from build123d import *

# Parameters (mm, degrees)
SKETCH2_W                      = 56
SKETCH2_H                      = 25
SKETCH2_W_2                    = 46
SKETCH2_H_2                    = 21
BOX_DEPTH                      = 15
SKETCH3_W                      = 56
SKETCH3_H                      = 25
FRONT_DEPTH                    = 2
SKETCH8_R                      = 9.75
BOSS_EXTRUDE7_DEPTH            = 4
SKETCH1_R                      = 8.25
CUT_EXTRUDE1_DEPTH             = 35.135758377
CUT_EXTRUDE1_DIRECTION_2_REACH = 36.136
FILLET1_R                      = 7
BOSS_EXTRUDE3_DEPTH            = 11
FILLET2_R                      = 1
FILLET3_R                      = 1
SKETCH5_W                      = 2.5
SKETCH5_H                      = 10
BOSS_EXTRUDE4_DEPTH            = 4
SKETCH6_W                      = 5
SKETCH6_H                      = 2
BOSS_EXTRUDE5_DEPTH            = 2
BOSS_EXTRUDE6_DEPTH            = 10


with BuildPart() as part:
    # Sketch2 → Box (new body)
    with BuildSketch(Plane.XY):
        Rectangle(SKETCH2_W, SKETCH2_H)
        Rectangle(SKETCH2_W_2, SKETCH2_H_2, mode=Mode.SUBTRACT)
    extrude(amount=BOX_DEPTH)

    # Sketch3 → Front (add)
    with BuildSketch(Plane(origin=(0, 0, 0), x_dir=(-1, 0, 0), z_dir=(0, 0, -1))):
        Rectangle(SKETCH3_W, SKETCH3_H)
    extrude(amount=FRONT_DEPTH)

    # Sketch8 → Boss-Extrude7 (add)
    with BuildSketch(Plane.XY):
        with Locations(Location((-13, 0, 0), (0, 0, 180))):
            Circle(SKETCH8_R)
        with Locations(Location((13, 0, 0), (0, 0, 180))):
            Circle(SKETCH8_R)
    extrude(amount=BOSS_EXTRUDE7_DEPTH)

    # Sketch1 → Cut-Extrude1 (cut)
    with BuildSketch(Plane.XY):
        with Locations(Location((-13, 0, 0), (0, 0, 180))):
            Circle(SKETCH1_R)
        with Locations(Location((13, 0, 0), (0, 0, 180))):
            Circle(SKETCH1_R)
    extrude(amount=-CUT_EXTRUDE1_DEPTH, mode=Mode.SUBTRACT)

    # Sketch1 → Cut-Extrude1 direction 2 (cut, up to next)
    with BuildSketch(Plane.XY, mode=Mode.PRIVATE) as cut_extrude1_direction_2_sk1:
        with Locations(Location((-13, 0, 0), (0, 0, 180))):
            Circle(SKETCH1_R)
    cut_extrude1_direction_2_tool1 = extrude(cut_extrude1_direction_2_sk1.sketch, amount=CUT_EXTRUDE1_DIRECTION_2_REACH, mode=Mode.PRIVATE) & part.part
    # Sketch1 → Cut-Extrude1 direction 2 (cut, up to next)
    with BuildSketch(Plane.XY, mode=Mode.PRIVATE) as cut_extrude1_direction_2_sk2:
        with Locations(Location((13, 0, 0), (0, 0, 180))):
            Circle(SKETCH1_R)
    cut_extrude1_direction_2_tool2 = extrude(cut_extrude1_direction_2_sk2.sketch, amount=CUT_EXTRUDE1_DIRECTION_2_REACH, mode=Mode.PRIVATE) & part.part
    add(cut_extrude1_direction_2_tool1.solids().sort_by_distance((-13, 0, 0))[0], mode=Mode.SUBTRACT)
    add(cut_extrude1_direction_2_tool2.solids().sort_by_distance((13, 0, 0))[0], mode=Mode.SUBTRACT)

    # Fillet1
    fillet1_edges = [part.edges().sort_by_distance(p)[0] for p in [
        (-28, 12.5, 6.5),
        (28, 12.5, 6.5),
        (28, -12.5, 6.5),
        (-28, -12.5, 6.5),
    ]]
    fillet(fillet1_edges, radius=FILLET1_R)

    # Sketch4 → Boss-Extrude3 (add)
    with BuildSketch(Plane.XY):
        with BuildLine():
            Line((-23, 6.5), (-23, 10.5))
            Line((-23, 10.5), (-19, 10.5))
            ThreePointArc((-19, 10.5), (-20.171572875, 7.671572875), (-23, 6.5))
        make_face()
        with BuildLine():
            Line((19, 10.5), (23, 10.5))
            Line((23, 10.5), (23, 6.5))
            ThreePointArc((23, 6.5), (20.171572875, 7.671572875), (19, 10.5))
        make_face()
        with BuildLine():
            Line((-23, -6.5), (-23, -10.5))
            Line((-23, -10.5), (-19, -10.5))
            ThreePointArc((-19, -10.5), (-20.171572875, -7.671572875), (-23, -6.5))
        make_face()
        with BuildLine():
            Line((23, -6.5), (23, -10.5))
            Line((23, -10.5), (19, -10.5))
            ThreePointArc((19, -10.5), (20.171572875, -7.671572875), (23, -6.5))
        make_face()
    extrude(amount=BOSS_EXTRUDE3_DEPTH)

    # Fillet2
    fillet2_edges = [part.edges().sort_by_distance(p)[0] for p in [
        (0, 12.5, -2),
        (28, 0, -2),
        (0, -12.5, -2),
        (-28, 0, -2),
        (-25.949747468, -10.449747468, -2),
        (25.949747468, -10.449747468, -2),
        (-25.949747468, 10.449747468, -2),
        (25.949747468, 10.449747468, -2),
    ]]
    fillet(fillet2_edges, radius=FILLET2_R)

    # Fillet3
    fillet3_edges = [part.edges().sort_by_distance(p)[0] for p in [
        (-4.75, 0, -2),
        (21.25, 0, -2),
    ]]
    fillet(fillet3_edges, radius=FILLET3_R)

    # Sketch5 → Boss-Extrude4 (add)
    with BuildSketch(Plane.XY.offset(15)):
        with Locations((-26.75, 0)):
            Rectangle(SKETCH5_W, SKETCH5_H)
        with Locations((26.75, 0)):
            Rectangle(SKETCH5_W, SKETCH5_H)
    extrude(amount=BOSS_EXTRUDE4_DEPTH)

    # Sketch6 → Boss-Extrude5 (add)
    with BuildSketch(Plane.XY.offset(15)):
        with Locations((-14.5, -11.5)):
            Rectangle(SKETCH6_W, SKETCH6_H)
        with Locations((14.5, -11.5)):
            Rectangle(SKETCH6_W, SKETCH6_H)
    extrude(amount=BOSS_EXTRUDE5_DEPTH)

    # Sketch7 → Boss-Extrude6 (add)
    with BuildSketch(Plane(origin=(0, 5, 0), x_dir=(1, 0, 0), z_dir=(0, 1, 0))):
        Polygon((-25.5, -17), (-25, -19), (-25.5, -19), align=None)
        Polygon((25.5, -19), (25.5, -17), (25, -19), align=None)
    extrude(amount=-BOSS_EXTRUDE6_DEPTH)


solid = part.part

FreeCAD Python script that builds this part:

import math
import FreeCAD as App
import Part
import Sketcher
Q = App.Units.Quantity


def edges_at(feature, points):
    """Names of the edges that pass closest to the given points."""
    edges = feature.Shape.Edges
    near = lambda p: min(range(len(edges)), key=lambda i: edges[i].distToShape(Part.Vertex(*p))[0])
    return sorted({f"Edge{near(p) + 1}" for p in points})

doc = App.newDocument("Part")
body = doc.addObject("PartDesign::Body", "Body")

# Sketch on XY plane
sketch1 = body.newObject("Sketcher::SketchObject", "Sketch")
sketch1.AttachmentSupport = (doc.getObject("XY_Plane"), [""])
sketch1.MapMode = "FlatFace"
sketch1.addGeometry([
    Part.LineSegment(App.Vector(-28, 12, 0), App.Vector(-28, -12, 0)),  # 0
    Part.LineSegment(App.Vector(-28, -12, 0), App.Vector(28, -12, 0)),  # 1
    Part.LineSegment(App.Vector(28, -12, 0), App.Vector(28, 12, 0)),  # 2
    Part.LineSegment(App.Vector(28, 12, 0), App.Vector(-28, 12, 0)),  # 3
    Part.LineSegment(App.Vector(23, -10, 0), App.Vector(-23, -10, 0)),  # 4
    Part.LineSegment(App.Vector(-23, -10, 0), App.Vector(-23, 10, 0)),  # 5
    Part.LineSegment(App.Vector(-23, 10, 0), App.Vector(23, 10, 0)),  # 6
    Part.LineSegment(App.Vector(23, 10, 0), App.Vector(23, -10, 0)),  # 7
], False)
sketch1.addConstraint([
    Sketcher.Constraint("Coincident", 0, 2, 1, 1),
    Sketcher.Constraint("Coincident", 1, 2, 2, 1),
    Sketcher.Constraint("Coincident", 2, 2, 3, 1),
    Sketcher.Constraint("Coincident", 3, 2, 0, 1),
    Sketcher.Constraint("Coincident", 4, 2, 5, 1),
    Sketcher.Constraint("Coincident", 5, 2, 6, 1),
    Sketcher.Constraint("Coincident", 6, 2, 7, 1),
    Sketcher.Constraint("Coincident", 7, 2, 4, 1),
    Sketcher.Constraint("Vertical", 0),
    Sketcher.Constraint("Horizontal", 1),
    Sketcher.Constraint("Vertical", 2),
    Sketcher.Constraint("Horizontal", 3),
    Sketcher.Constraint("Horizontal", 4),
    Sketcher.Constraint("Vertical", 5),
    Sketcher.Constraint("Horizontal", 6),
    Sketcher.Constraint("Vertical", 7),
    Sketcher.Constraint("Symmetric", 0, 2, 2, 2, -1, 1),
    Sketcher.Constraint("Symmetric", 4, 2, 6, 2, -1, 1),
    Sketcher.Constraint("DistanceX", 1, 1, 1, 2, Q("56 mm")),
    Sketcher.Constraint("DistanceX", 4, 2, 4, 1, Q("46 mm")),
    Sketcher.Constraint("DistanceY", 0, 2, 0, 1, Q("25 mm")),
    Sketcher.Constraint("DistanceY", 5, 1, 5, 2, Q("21 mm")),
])
pad1 = body.newObject("PartDesign::Pad", "Pad")
pad1.Profile = sketch1
pad1.Length = 15

# Sketch on XY plane
sketch2 = body.newObject("Sketcher::SketchObject", "Sketch001")
sketch2.AttachmentSupport = (doc.getObject("XY_Plane"), [""])
sketch2.MapMode = "FlatFace"
sketch2.addGeometry([
    Part.LineSegment(App.Vector(28, 12, 0), App.Vector(28, -12, 0)),
    Part.LineSegment(App.Vector(28, -12, 0), App.Vector(-28, -12, 0)),
    Part.LineSegment(App.Vector(-28, -12, 0), App.Vector(-28, 12, 0)),
    Part.LineSegment(App.Vector(-28, 12, 0), App.Vector(28, 12, 0)),
], False)
sketch2.addConstraint([
    Sketcher.Constraint("Coincident", 0, 2, 1, 1),
    Sketcher.Constraint("Coincident", 1, 2, 2, 1),
    Sketcher.Constraint("Coincident", 2, 2, 3, 1),
    Sketcher.Constraint("Coincident", 3, 2, 0, 1),
    Sketcher.Constraint("Vertical", 0),
    Sketcher.Constraint("Horizontal", 1),
    Sketcher.Constraint("Vertical", 2),
    Sketcher.Constraint("Horizontal", 3),
    Sketcher.Constraint("Symmetric", 0, 2, 2, 2, -1, 1),
    Sketcher.Constraint("DistanceX", 1, 2, 1, 1, Q("56 mm")),
    Sketcher.Constraint("DistanceY", 0, 2, 0, 1, Q("25 mm")),
])
pad2 = body.newObject("PartDesign::Pad", "Pad001")
pad2.Profile = sketch2
pad2.Length = 2
pad2.Reversed = True

# Sketch on XY plane
sketch3 = body.newObject("Sketcher::SketchObject", "Sketch002")
sketch3.AttachmentSupport = (doc.getObject("XY_Plane"), [""])
sketch3.MapMode = "FlatFace"
sketch3.addGeometry([
    Part.Circle(App.Vector(-13, 0, 0), App.Vector(0, 0, 1), 10),
    Part.Circle(App.Vector(13, 0, 0), App.Vector(0, 0, 1), 10),
], False)
sketch3.addConstraint([
    Sketcher.Constraint("Equal", 0, 1),
    Sketcher.Constraint("Symmetric", 0, 3, 1, 3, -1, 1),
    Sketcher.Constraint("PointOnObject", 0, 3, -1),
    Sketcher.Constraint("Diameter", 0, Q("19.5 mm")),
    Sketcher.Constraint("DistanceX", 0, 3, -1, 1, Q("13 mm")),
])
pad3 = body.newObject("PartDesign::Pad", "Pad002")
pad3.Profile = sketch3
pad3.Length = 4

# Sketch on XY plane
sketch4 = body.newObject("Sketcher::SketchObject", "Sketch003")
sketch4.AttachmentSupport = (doc.getObject("XY_Plane"), [""])
sketch4.MapMode = "FlatFace"
sketch4.addGeometry([
    Part.Circle(App.Vector(-13, 0, 0), App.Vector(0, 0, 1), 8),
    Part.Circle(App.Vector(13, 0, 0), App.Vector(0, 0, 1), 8),
], False)
sketch4.addConstraint([
    Sketcher.Constraint("Equal", 0, 1),
    Sketcher.Constraint("Symmetric", 0, 3, 1, 3, -1, 1),
    Sketcher.Constraint("PointOnObject", 0, 3, -1),
    Sketcher.Constraint("Diameter", 0, Q("16.5 mm")),
    Sketcher.Constraint("DistanceX", 0, 3, -1, 1, Q("13 mm")),
])
pocket1 = body.newObject("PartDesign::Pocket", "Pocket")
pocket1.Profile = sketch4
pocket1.Length = 35.135758

# Sketch on XY plane
sketch5 = body.newObject("Sketcher::SketchObject", "Sketch004")
sketch5.AttachmentSupport = (doc.getObject("XY_Plane"), [""])
sketch5.MapMode = "FlatFace"
sketch5.addGeometry(Part.Circle(App.Vector(-13, 0, 0), App.Vector(0, 0, 1), 8), False)
sketch5.addConstraint([
    Sketcher.Constraint("PointOnObject", 0, 3, -1),
    Sketcher.Constraint("Diameter", 0, Q("16.5 mm")),
    Sketcher.Constraint("DistanceX", 0, 3, -1, 1, Q("13 mm")),
])
pocket2 = body.newObject("PartDesign::Pocket", "Pocket001")
pocket2.Profile = sketch5
pocket2.Type = "UpToFirst"
pocket2.Reversed = True

# Sketch on XY plane
sketch6 = body.newObject("Sketcher::SketchObject", "Sketch005")
sketch6.AttachmentSupport = (doc.getObject("XY_Plane"), [""])
sketch6.MapMode = "FlatFace"
sketch6.addGeometry(Part.Circle(App.Vector(13, 0, 0), App.Vector(0, 0, 1), 8), False)
sketch6.addConstraint([
    Sketcher.Constraint("PointOnObject", 0, 3, -1),
    Sketcher.Constraint("Diameter", 0, Q("16.5 mm")),
    Sketcher.Constraint("DistanceX", -1, 1, 0, 3, Q("13 mm")),
])
pocket3 = body.newObject("PartDesign::Pocket", "Pocket002")
pocket3.Profile = sketch6
pocket3.Type = "UpToFirst"
pocket3.Reversed = True
doc.recompute()

fillet = body.newObject("PartDesign::Fillet", "Fillet")
fillet.Base = (pocket3, edges_at(pocket3, [
    (-28, 12.5, 6.5),
    (28, 12.5, 6.5),
    (28, -12.5, 6.5),
    (-28, -12.5, 6.5),
]))
fillet.Radius = 7

# Sketch on XY plane
sketch7 = body.newObject("Sketcher::SketchObject", "Sketch006")
sketch7.AttachmentSupport = (doc.getObject("XY_Plane"), [""])
sketch7.MapMode = "FlatFace"
sketch7.addGeometry([
    Part.LineSegment(App.Vector(-23, 10.5, 0), App.Vector(-23, 6.5, 0)),  # 0
    Part.ArcOfCircle(Part.Circle(App.Vector(-23, 10.5, 0), App.Vector(0, 0, 1), 4), math.radians(-90), math.radians(0)),  # 1
    Part.LineSegment(App.Vector(-19, 10.5, 0), App.Vector(-23, 10.5, 0)),  # 2
    Part.LineSegment(App.Vector(23, 10.5, 0), App.Vector(19, 10.5, 0)),  # 3
    Part.ArcOfCircle(Part.Circle(App.Vector(23, 10.5, 0), App.Vector(0, 0, 1), 4), math.radians(180), math.radians(270)),  # 4
    Part.LineSegment(App.Vector(23, 6.5, 0), App.Vector(23, 10.5, 0)),  # 5
    Part.LineSegment(App.Vector(-23, -6.5, 0), App.Vector(-23, -10.5, 0)),  # 6
    Part.LineSegment(App.Vector(-23, -10.5, 0), App.Vector(-19, -10.5, 0)),  # 7
    Part.ArcOfCircle(Part.Circle(App.Vector(-23, -10.5, 0), App.Vector(0, 0, 1), 4), math.radians(0), math.radians(90)),  # 8
    Part.LineSegment(App.Vector(23, -10.5, 0), App.Vector(23, -6.5, 0)),  # 9
    Part.ArcOfCircle(Part.Circle(App.Vector(23, -10.5, 0), App.Vector(0, 0, 1), 4), math.radians(90), math.radians(180)),  # 10
    Part.LineSegment(App.Vector(19, -10.5, 0), App.Vector(23, -10.5, 0)),  # 11
], False)
sketch7.addConstraint([
    Sketcher.Constraint("Coincident", 0, 2, 1, 1),
    Sketcher.Constraint("Coincident", 1, 2, 2, 1),
    Sketcher.Constraint("Coincident", 2, 2, 0, 1),
    Sketcher.Constraint("Coincident", 3, 2, 4, 1),
    Sketcher.Constraint("Coincident", 4, 2, 5, 1),
    Sketcher.Constraint("Coincident", 5, 2, 3, 1),
    Sketcher.Constraint("Coincident", 6, 2, 7, 1),
    Sketcher.Constraint("Coincident", 7, 2, 8, 1),
    Sketcher.Constraint("Coincident", 8, 2, 6, 1),
    Sketcher.Constraint("Coincident", 9, 2, 10, 1),
    Sketcher.Constraint("Coincident", 10, 2, 11, 1),
    Sketcher.Constraint("Coincident", 11, 2, 9, 1),
    Sketcher.Constraint("Vertical", 0),
    Sketcher.Constraint("Horizontal", 2),
    Sketcher.Constraint("Horizontal", 3),
    Sketcher.Constraint("Vertical", 5),
    Sketcher.Constraint("Vertical", 6),
    Sketcher.Constraint("Horizontal", 7),
    Sketcher.Constraint("Vertical", 9),
    Sketcher.Constraint("Horizontal", 11),
    Sketcher.Constraint("Coincident", 2, 2, 1, 3),
    Sketcher.Constraint("Coincident", 5, 2, 4, 3),
    Sketcher.Constraint("Coincident", 6, 2, 8, 3),
    Sketcher.Constraint("Coincident", 11, 2, 10, 3),
    Sketcher.Constraint("Equal", 1, 4),
    Sketcher.Constraint("Equal", 4, 8),
    Sketcher.Constraint("Equal", 8, 10),
    Sketcher.Constraint("Symmetric", 4, 3, 8, 3, -1, 1),
    Sketcher.Constraint("Symmetric", 1, 3, 10, 3, -1, 1),
    Sketcher.Constraint("Symmetric", 1, 3, 4, 3, -2),
    Sketcher.Constraint("Radius", 1, Q("4 mm")),
    Sketcher.Constraint("DistanceX", 1, 3, -1, 1, Q("23 mm")),
    Sketcher.Constraint("DistanceY", 8, 3, 1, 3, Q("21 mm")),
])
pad4 = body.newObject("PartDesign::Pad", "Pad003")
pad4.Profile = sketch7
pad4.Length = 11
doc.recompute()

fillet2 = body.newObject("PartDesign::Fillet", "Fillet001")
fillet2.Base = (pad4, edges_at(pad4, [
    (0, 12.5, -2),
    (28, 0, -2),
    (0, -12.5, -2),
    (-28, 0, -2),
    (-25.95, -10.45, -2),
    (25.95, -10.45, -2),
    (-25.95, 10.45, -2),
    (25.95, 10.45, -2),
]))
fillet2.Radius = 1
doc.recompute()

fillet3 = body.newObject("PartDesign::Fillet", "Fillet002")
fillet3.Base = (fillet2, edges_at(fillet2, [(-4.75, 0, -2), (21.25, 0, -2)]))
fillet3.Radius = 1

# Sketch on XY plane
sketch8 = body.newObject("Sketcher::SketchObject", "Sketch007")
sketch8.AttachmentSupport = (doc.getObject("XY_Plane"), [""])
sketch8.MapMode = "FlatFace"
sketch8.AttachmentOffset = App.Placement(App.Vector(0, 0, 15), App.Rotation())
sketch8.addGeometry([
    Part.LineSegment(App.Vector(-28, 5, 0), App.Vector(-28, -5, 0)),  # 0
    Part.LineSegment(App.Vector(-28, -5, 0), App.Vector(-25.5, -5, 0)),  # 1
    Part.LineSegment(App.Vector(-25.5, -5, 0), App.Vector(-25.5, 5, 0)),  # 2
    Part.LineSegment(App.Vector(-25.5, 5, 0), App.Vector(-28, 5, 0)),  # 3
    Part.LineSegment(App.Vector(25.5, 5, 0), App.Vector(25.5, -5, 0)),  # 4
    Part.LineSegment(App.Vector(25.5, -5, 0), App.Vector(28, -5, 0)),  # 5
    Part.LineSegment(App.Vector(28, -5, 0), App.Vector(28, 5, 0)),  # 6
    Part.LineSegment(App.Vector(28, 5, 0), App.Vector(25.5, 5, 0)),  # 7
], False)
sketch8.addConstraint([
    Sketcher.Constraint("Coincident", 0, 2, 1, 1),
    Sketcher.Constraint("Coincident", 1, 2, 2, 1),
    Sketcher.Constraint("Coincident", 2, 2, 3, 1),
    Sketcher.Constraint("Coincident", 3, 2, 0, 1),
    Sketcher.Constraint("Coincident", 4, 2, 5, 1),
    Sketcher.Constraint("Coincident", 5, 2, 6, 1),
    Sketcher.Constraint("Coincident", 6, 2, 7, 1),
    Sketcher.Constraint("Coincident", 7, 2, 4, 1),
    Sketcher.Constraint("Vertical", 0),
    Sketcher.Constraint("Horizontal", 1),
    Sketcher.Constraint("Vertical", 2),
    Sketcher.Constraint("Horizontal", 3),
    Sketcher.Constraint("Vertical", 4),
    Sketcher.Constraint("Horizontal", 5),
    Sketcher.Constraint("Vertical", 6),
    Sketcher.Constraint("Horizontal", 7),
    Sketcher.Constraint("Symmetric", 2, 2, 4, 2, -1, 1),
    Sketcher.Constraint("Symmetric", 0, 2, 6, 2, -1, 1),
    Sketcher.Constraint("Horizontal", 1, 2, 4, 2),
    Sketcher.Constraint("DistanceY", 0, 2, 0, 1, Q("10 mm")),
    Sketcher.Constraint("DistanceX", 1, 1, 1, 2, Q("2.5 mm")),
    Sketcher.Constraint("DistanceX", 0, 2, -1, 1, Q("28 mm")),
])
pad5 = body.newObject("PartDesign::Pad", "Pad004")
pad5.Profile = sketch8
pad5.Length = 4

# Sketch on XY plane
sketch9 = body.newObject("Sketcher::SketchObject", "Sketch008")
sketch9.AttachmentSupport = (doc.getObject("XY_Plane"), [""])
sketch9.MapMode = "FlatFace"
sketch9.AttachmentOffset = App.Placement(App.Vector(0, 0, 15), App.Rotation())
sketch9.addGeometry([
    Part.LineSegment(App.Vector(-17, -10.5, 0), App.Vector(-17, -12.5, 0)),  # 0
    Part.LineSegment(App.Vector(-17, -12.5, 0), App.Vector(-12, -12.5, 0)),  # 1
    Part.LineSegment(App.Vector(-12, -12.5, 0), App.Vector(-12, -10.5, 0)),  # 2
    Part.LineSegment(App.Vector(-12, -10.5, 0), App.Vector(-17, -10.5, 0)),  # 3
    Part.LineSegment(App.Vector(12, -10.5, 0), App.Vector(12, -12.5, 0)),  # 4
    Part.LineSegment(App.Vector(12, -12.5, 0), App.Vector(17, -12.5, 0)),  # 5
    Part.LineSegment(App.Vector(17, -12.5, 0), App.Vector(17, -10.5, 0)),  # 6
    Part.LineSegment(App.Vector(17, -10.5, 0), App.Vector(12, -10.5, 0)),  # 7
], False)
sketch9.addConstraint([
    Sketcher.Constraint("Coincident", 0, 2, 1, 1),
    Sketcher.Constraint("Coincident", 1, 2, 2, 1),
    Sketcher.Constraint("Coincident", 2, 2, 3, 1),
    Sketcher.Constraint("Coincident", 3, 2, 0, 1),
    Sketcher.Constraint("Coincident", 4, 2, 5, 1),
    Sketcher.Constraint("Coincident", 5, 2, 6, 1),
    Sketcher.Constraint("Coincident", 6, 2, 7, 1),
    Sketcher.Constraint("Coincident", 7, 2, 4, 1),
    Sketcher.Constraint("Vertical", 0),
    Sketcher.Constraint("Horizontal", 1),
    Sketcher.Constraint("Vertical", 2),
    Sketcher.Constraint("Horizontal", 3),
    Sketcher.Constraint("Vertical", 4),
    Sketcher.Constraint("Horizontal", 5),
    Sketcher.Constraint("Vertical", 6),
    Sketcher.Constraint("Horizontal", 7),
    Sketcher.Constraint("Symmetric", 1, 2, 4, 2, -2),
    Sketcher.Constraint("Symmetric", 3, 2, 6, 2, -2),
    Sketcher.Constraint("DistanceX", 1, 1, 1, 2, Q("5 mm")),
    Sketcher.Constraint("DistanceY", 0, 2, 0, 1, Q("2 mm")),
    Sketcher.Constraint("DistanceX", 0, 2, -1, 1, Q("17 mm")),
    Sketcher.Constraint("DistanceY", 0, 2, -1, 1, Q("12.5 mm")),
])
pad6 = body.newObject("PartDesign::Pad", "Pad005")
pad6.Profile = sketch9
pad6.Length = 2

# Sketch on XZ plane
sketch10 = body.newObject("Sketcher::SketchObject", "Sketch009")
sketch10.AttachmentSupport = (doc.getObject("XZ_Plane"), [""])
sketch10.MapMode = "FlatFace"
sketch10.AttachmentOffset = App.Placement(App.Vector(0, 0, -5), App.Rotation())
sketch10.addGeometry([
    Part.LineSegment(App.Vector(-25, 19, 0), App.Vector(-25.5, 17, 0)),  # 0
    Part.LineSegment(App.Vector(-25.5, 17, 0), App.Vector(-25.5, 19, 0)),  # 1
    Part.LineSegment(App.Vector(-25.5, 19, 0), App.Vector(-25, 19, 0)),  # 2
    Part.LineSegment(App.Vector(25.5, 19, 0), App.Vector(25.5, 17, 0)),  # 3
    Part.LineSegment(App.Vector(25.5, 17, 0), App.Vector(25, 19, 0)),  # 4
    Part.LineSegment(App.Vector(25, 19, 0), App.Vector(25.5, 19, 0)),  # 5
], False)
sketch10.addConstraint([
    Sketcher.Constraint("Coincident", 0, 2, 1, 1),
    Sketcher.Constraint("Coincident", 1, 2, 2, 1),
    Sketcher.Constraint("Coincident", 2, 2, 0, 1),
    Sketcher.Constraint("Coincident", 3, 2, 4, 1),
    Sketcher.Constraint("Coincident", 4, 2, 5, 1),
    Sketcher.Constraint("Coincident", 5, 2, 3, 1),
    Sketcher.Constraint("Vertical", 1),
    Sketcher.Constraint("Horizontal", 2),
    Sketcher.Constraint("Vertical", 3),
    Sketcher.Constraint("Horizontal", 5),
    Sketcher.Constraint("Symmetric", 0, 2, 3, 2, -2),
    Sketcher.Constraint("Symmetric", 2, 2, 4, 2, -2),
    Sketcher.Constraint("DistanceY", 1, 1, 1, 2, Q("2 mm")),
    Sketcher.Constraint("DistanceX", 2, 1, 2, 2, Q("0.5 mm")),
    Sketcher.Constraint("DistanceY", -1, 1, 0, 2, Q("17 mm")),
    Sketcher.Constraint("DistanceX", 2, 2, -1, 1, Q("25 mm")),
])
pad7 = body.newObject("PartDesign::Pad", "Pad006")
pad7.Profile = sketch10
pad7.Length = 10

doc.recompute()
